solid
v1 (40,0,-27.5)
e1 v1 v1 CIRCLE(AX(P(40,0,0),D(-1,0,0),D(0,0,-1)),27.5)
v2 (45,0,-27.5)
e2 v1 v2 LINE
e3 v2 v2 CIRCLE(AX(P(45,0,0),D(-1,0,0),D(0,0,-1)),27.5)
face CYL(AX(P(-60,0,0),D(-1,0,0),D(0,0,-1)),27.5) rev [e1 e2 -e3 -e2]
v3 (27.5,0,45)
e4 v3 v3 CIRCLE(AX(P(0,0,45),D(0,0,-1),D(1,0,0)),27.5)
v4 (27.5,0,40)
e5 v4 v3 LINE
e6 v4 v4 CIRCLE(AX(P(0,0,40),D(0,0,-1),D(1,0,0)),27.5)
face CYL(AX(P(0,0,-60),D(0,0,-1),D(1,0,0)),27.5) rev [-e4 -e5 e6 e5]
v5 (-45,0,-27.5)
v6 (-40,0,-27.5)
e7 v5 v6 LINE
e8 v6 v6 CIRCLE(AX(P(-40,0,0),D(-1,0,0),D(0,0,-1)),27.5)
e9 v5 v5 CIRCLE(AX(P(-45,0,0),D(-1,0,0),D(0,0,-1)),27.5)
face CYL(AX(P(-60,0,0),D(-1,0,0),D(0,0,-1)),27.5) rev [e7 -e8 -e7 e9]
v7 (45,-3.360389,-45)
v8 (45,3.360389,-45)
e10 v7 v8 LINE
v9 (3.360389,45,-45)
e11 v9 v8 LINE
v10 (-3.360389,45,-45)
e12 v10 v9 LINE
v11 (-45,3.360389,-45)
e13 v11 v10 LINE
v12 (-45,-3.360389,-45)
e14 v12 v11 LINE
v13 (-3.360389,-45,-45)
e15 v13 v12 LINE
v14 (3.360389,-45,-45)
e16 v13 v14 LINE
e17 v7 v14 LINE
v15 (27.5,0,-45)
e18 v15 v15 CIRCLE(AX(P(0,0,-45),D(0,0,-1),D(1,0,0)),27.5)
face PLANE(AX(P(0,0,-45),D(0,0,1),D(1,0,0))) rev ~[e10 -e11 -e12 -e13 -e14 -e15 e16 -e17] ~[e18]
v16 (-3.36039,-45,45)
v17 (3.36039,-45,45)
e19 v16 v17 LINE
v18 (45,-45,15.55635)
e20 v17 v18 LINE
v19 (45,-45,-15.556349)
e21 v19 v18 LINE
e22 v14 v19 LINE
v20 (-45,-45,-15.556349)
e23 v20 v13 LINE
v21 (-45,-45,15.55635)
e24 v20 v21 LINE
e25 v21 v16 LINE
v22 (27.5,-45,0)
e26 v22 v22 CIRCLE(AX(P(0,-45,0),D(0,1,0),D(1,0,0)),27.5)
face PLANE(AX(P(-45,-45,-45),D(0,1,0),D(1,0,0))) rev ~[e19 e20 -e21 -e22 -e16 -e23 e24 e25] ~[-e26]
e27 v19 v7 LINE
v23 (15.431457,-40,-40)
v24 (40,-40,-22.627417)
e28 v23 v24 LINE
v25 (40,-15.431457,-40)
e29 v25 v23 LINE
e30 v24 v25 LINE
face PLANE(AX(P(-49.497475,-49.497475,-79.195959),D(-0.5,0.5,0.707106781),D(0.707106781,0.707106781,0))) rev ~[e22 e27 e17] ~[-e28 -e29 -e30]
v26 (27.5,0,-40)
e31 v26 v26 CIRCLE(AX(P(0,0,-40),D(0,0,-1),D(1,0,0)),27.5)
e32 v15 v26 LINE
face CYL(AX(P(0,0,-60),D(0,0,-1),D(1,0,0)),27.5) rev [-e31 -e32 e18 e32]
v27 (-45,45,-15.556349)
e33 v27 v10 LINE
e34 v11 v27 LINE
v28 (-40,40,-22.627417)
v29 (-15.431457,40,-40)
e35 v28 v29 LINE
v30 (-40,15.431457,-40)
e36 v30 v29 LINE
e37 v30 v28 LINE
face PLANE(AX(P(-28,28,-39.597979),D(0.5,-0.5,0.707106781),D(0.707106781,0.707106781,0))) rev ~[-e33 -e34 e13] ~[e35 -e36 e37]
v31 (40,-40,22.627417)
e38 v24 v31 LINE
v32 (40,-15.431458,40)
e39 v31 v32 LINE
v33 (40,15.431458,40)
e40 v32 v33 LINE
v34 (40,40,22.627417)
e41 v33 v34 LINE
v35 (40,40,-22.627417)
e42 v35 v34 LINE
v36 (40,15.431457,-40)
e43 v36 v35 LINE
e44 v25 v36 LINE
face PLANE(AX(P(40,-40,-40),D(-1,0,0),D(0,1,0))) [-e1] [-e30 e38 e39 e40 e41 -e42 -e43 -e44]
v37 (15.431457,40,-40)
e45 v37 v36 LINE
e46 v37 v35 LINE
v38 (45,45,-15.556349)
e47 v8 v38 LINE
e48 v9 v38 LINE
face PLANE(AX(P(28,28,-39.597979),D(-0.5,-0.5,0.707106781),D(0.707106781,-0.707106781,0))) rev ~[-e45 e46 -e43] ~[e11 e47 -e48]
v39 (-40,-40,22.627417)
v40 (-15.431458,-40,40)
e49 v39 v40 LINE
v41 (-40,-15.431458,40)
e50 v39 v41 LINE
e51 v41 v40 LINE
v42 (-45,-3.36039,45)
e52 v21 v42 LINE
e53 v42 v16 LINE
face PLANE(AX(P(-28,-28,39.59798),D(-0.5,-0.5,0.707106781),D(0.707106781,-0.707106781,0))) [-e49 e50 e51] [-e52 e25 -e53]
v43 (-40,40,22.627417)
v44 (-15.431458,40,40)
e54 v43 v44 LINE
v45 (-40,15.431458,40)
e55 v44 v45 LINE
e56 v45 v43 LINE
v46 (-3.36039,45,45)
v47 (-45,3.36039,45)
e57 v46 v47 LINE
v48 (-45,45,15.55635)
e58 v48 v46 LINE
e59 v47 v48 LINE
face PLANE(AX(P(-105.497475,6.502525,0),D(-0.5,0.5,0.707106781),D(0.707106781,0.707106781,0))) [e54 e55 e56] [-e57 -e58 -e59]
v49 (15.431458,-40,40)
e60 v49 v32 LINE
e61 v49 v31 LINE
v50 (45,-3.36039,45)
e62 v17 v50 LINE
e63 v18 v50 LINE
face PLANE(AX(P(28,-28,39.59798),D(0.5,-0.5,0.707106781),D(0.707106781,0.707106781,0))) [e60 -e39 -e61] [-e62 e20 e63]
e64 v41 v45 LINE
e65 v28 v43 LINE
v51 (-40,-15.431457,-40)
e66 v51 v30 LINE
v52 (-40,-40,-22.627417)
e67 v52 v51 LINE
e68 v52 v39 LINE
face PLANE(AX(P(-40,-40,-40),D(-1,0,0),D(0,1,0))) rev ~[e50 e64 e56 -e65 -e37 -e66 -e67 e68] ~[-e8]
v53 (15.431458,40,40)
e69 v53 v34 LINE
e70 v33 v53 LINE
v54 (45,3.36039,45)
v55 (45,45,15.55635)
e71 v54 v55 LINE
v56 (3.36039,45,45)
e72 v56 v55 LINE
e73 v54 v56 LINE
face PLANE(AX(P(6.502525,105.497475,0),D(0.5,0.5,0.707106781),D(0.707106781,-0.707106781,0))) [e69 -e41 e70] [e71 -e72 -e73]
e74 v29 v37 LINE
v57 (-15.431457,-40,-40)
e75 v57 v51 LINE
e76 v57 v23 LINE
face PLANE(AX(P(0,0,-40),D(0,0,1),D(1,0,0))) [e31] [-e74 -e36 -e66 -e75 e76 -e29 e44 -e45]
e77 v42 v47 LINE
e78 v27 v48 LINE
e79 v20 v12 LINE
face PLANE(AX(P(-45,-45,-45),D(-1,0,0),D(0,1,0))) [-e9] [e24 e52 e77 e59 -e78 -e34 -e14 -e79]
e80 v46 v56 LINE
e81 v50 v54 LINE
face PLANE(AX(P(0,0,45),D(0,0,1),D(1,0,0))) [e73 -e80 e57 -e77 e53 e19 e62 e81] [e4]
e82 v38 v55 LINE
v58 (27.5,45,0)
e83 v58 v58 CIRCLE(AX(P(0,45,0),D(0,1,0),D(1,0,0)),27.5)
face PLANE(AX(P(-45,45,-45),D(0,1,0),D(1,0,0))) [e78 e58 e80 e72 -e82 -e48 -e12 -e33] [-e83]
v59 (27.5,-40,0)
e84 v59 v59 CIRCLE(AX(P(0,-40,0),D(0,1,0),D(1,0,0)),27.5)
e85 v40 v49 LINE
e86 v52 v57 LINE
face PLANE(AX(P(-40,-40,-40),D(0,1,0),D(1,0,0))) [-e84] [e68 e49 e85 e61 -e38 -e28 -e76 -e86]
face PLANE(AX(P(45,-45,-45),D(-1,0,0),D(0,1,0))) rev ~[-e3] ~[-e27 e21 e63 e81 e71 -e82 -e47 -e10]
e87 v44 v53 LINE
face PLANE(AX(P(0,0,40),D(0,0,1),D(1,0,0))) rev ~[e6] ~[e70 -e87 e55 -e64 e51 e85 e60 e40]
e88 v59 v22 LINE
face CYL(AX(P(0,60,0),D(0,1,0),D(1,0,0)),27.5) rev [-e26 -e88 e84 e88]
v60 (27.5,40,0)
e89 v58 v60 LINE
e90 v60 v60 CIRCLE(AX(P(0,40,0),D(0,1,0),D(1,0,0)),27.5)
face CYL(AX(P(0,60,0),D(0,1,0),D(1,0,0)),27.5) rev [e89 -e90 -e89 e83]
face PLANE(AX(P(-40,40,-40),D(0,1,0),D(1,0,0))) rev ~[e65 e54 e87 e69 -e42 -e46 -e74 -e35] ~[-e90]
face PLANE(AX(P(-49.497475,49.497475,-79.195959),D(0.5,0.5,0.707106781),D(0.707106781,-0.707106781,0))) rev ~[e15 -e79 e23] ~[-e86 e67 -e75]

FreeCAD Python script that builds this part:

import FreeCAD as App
import Part
import Sketcher

V = App.Vector

doc = App.newDocument("Part")
body = doc.addObject("PartDesign::Body", "Body")

sketch1 = doc.addObject("Sketcher::SketchObject", "Sketch")
body.addObject(sketch1)
sketch1.AttachmentSupport = (doc.XY_Plane, [""])
sketch1.MapMode = "FlatFace"
sketch1.addGeometry(Part.LineSegment(V(0, 112, 0), V(0, 0, 0)), False)
sketch1.addGeometry(Part.LineSegment(V(0, 0, 0), V(140, 0, 0)), False)
sketch1.addGeometry(Part.LineSegment(V(140, 0, 0), V(140, 112, 0)), False)
sketch1.addGeometry(Part.LineSegment(V(140, 112, 0), V(0, 112, 0)), False)
sketch1.addConstraint(Sketcher.Constraint("Coincident", 0, 2, 1, 1))
sketch1.addConstraint(Sketcher.Constraint("Coincident", 1, 2, 2, 1))
sketch1.addConstraint(Sketcher.Constraint("Coincident", 2, 2, 3, 1))
sketch1.addConstraint(Sketcher.Constraint("Coincident", 3, 2, 0, 1))
sketch1.addConstraint(Sketcher.Constraint("Vertical", 0))
sketch1.addConstraint(Sketcher.Constraint("Horizontal", 1))
sketch1.addConstraint(Sketcher.Constraint("Vertical", 2))
sketch1.addConstraint(Sketcher.Constraint("Horizontal", 3))
sketch1.addConstraint(Sketcher.Constraint("Coincident", 0, 2, -1, 1))
sketch1.addConstraint(Sketcher.Constraint("DistanceX", 1, 1, 1, 2, 140.0))
sketch1.addConstraint(Sketcher.Constraint("DistanceY", 0, 2, 0, 1, 112.0))
pad1 = doc.addObject("PartDesign::Pad", "Pad")
body.addObject(pad1)
pad1.Profile = sketch1
pad1.Length = 112
body2 = doc.addObject("PartDesign::Body", "Body001")
doc.recompute()

body.Placement = App.Placement(V(0, 0, 0), App.Rotation(V(1, 0, 0), 45))
boolean = doc.addObject("PartDesign::Boolean", "Boolean")
body2.addObject(boolean)
boolean.Type = "Fuse"
boolean.addObjects([body])
body3 = doc.addObject("PartDesign::Body", "Body002")
doc.recompute()

body2.Placement = App.Placement(V(-49.497475, 49.497475, -79.195959), App.Rotation(V(0, 0, 1), 315))
boolean2 = doc.addObject("PartDesign::Boolean", "Boolean001")
body3.addObject(boolean2)
boolean2.Type = "Fuse"
boolean2.addObjects([body2])
body4 = doc.addObject("PartDesign::Body", "Body003")

sketch2 = doc.addObject("Sketcher::SketchObject", "Sketch001")
body4.addObject(sketch2)
sketch2.AttachmentSupport = (doc.getObject("XY_Plane003"), [""])
sketch2.MapMode = "FlatFace"
sketch2.addGeometry(Part.LineSegment(V(0, 180, 0), V(0, 0, 0)), False)
sketch2.addGeometry(Part.LineSegment(V(0, 0, 0), V(180, 0, 0)), False)
sketch2.addGeometry(Part.LineSegment(V(180, 0, 0), V(180, 180, 0)), False)
sketch2.addGeometry(Part.LineSegment(V(180, 180, 0), V(0, 180, 0)), False)
sketch2.addConstraint(Sketcher.Constraint("Coincident", 0, 2, 1, 1))
sketch2.addConstraint(Sketcher.Constraint("Coincident", 1, 2, 2, 1))
sketch2.addConstraint(Sketcher.Constraint("Coincident", 2, 2, 3, 1))
sketch2.addConstraint(Sketcher.Constraint("Coincident", 3, 2, 0, 1))
sketch2.addConstraint(Sketcher.Constraint("Vertical", 0))
sketch2.addConstraint(Sketcher.Constraint("Horizontal", 1))
sketch2.addConstraint(Sketcher.Constraint("Vertical", 2))
sketch2.addConstraint(Sketcher.Constraint("Horizontal", 3))
sketch2.addConstraint(Sketcher.Constraint("Coincident", 0, 2, -1, 1))
sketch2.addConstraint(Sketcher.Constraint("Equal", 3, 0))
sketch2.addConstraint(Sketcher.Constraint("DistanceX", 1, 1, 1, 2, 180.0))
pad2 = doc.addObject("PartDesign::Pad", "Pad001")
body4.addObject(pad2)
pad2.Profile = sketch2
pad2.Length = 180
body5 = doc.addObject("PartDesign::Body", "Body004")
doc.recompute()

body4.Placement = App.Placement(V(0, 0, 0), App.Rotation(V(1, 0, 0), 45))
boolean3 = doc.addObject("PartDesign::Boolean", "Boolean002")
body5.addObject(boolean3)
boolean3.Type = "Fuse"
boolean3.addObjects([body4])
body6 = doc.addObject("PartDesign::Body", "Body005")
doc.recompute()

body5.Placement = App.Placement(V(-63.63961, 63.63961, -127.279221), App.Rotation(V(0, 0, 1), 315))
boolean4 = doc.addObject("PartDesign::Boolean", "Boolean003")
body6.addObject(boolean4)
boolean4.Type = "Fuse"
boolean4.addObjects([body5])
doc.recompute()

boolean5 = doc.addObject("PartDesign::Boolean", "Boolean004")
body6.addObject(boolean5)
boolean5.Type = "Cut"
boolean5.addObjects([body3])
body7 = doc.addObject("PartDesign::Body", "Body006")

sketch3 = doc.addObject("Sketcher::SketchObject", "Sketch002")
body7.addObject(sketch3)
sketch3.AttachmentSupport = (doc.getObject("XY_Plane006"), [""])
sketch3.MapMode = "FlatFace"
sketch3.addGeometry(Part.LineSegment(V(0, 112, 0), V(0, 0, 0)), False)
sketch3.addGeometry(Part.LineSegment(V(0, 0, 0), V(140, 0, 0)), False)
sketch3.addGeometry(Part.LineSegment(V(140, 0, 0), V(140, 112, 0)), False)
sketch3.addGeometry(Part.LineSegment(V(140, 112, 0), V(0, 112, 0)), False)
sketch3.addConstraint(Sketcher.Constraint("Coincident", 0, 2, 1, 1))
sketch3.addConstraint(Sketcher.Constraint("Coincident", 1, 2, 2, 1))
sketch3.addConstraint(Sketcher.Constraint("Coincident", 2, 2, 3, 1))
sketch3.addConstraint(Sketcher.Constraint("Coincident", 3, 2, 0, 1))
sketch3.addConstraint(Sketcher.Constraint("Vertical", 0))
sketch3.addConstraint(Sketcher.Constraint("Horizontal", 1))
sketch3.addConstraint(Sketcher.Constraint("Vertical", 2))
sketch3.addConstraint(Sketcher.Constraint("Horizontal", 3))
sketch3.addConstraint(Sketcher.Constraint("Coincident", 0, 2, -1, 1))
sketch3.addConstraint(Sketcher.Constraint("DistanceX", 1, 1, 1, 2, 140.0))
sketch3.addConstraint(Sketcher.Constraint("DistanceY", 0, 2, 0, 1, 112.0))
pad3 = doc.addObject("PartDesign::Pad", "Pad002")
body7.addObject(pad3)
pad3.Profile = sketch3
pad3.Length = 112
body8 = doc.addObject("PartDesign::Body", "Body007")
doc.recompute()

body7.Placement = App.Placement(V(0, 0, 0), App.Rotation(V(1, 0, 0), 45))
boolean6 = doc.addObject("PartDesign::Boolean", "Boolean005")
body8.addObject(boolean6)
boolean6.Type = "Fuse"
boolean6.addObjects([body7])
body9 = doc.addObject("PartDesign::Body", "Body008")
doc.recompute()

body8.Placement = App.Placement(V(-49.497475, -49.497475, -79.195959), App.Rotation(V(0, 0, 1), 45))
boolean7 = doc.addObject("PartDesign::Boolean", "Boolean006")
body9.addObject(boolean7)
boolean7.Type = "Fuse"
boolean7.addObjects([body8])
body10 = doc.addObject("PartDesign::Body", "Body009")

sketch4 = doc.addObject("Sketcher::SketchObject", "Sketch003")
body10.addObject(sketch4)
sketch4.AttachmentSupport = (doc.getObject("XY_Plane009"), [""])
sketch4.MapMode = "FlatFace"
sketch4.addGeometry(Part.LineSegment(V(0, 180, 0), V(0, 0, 0)), False)
sketch4.addGeometry(Part.LineSegment(V(0, 0, 0), V(180, 0, 0)), False)
sketch4.addGeometry(Part.LineSegment(V(180, 0, 0), V(180, 180, 0)), False)
sketch4.addGeometry(Part.LineSegment(V(180, 180, 0), V(0, 180, 0)), False)
sketch4.addConstraint(Sketcher.Constraint("Coincident", 0, 2, 1, 1))
sketch4.addConstraint(Sketcher.Constraint("Coincident", 1, 2, 2, 1))
sketch4.addConstraint(Sketcher.Constraint("Coincident", 2, 2, 3, 1))
sketch4.addConstraint(Sketcher.Constraint("Coincident", 3, 2, 0, 1))
sketch4.addConstraint(Sketcher.Constraint("Vertical", 0))
sketch4.addConstraint(Sketcher.Constraint("Horizontal", 1))
sketch4.addConstraint(Sketcher.Constraint("Vertical", 2))
sketch4.addConstraint(Sketcher.Constraint("Horizontal", 3))
sketch4.addConstraint(Sketcher.Constraint("Coincident", 0, 2, -1, 1))
sketch4.addConstraint(Sketcher.Constraint("Equal", 3, 0))
sketch4.addConstraint(Sketcher.Constraint("DistanceX", 1, 1, 1, 2, 180.0))
pad4 = doc.addObject("PartDesign::Pad", "Pad003")
body10.addObject(pad4)
pad4.Profile = sketch4
pad4.Length = 180
body11 = doc.addObject("PartDesign::Body", "Body010")
doc.recompute()

body10.Placement = App.Placement(V(0, 0, 0), App.Rotation(V(1, 0, 0), 45))
boolean8 = doc.addObject("PartDesign::Boolean", "Boolean007")
body11.addObject(boolean8)
boolean8.Type = "Fuse"
boolean8.addObjects([body10])
body12 = doc.addObject("PartDesign::Body", "Body011")
doc.recompute()

body11.Placement = App.Placement(V(-63.63961, -63.63961, -127.279221), App.Rotation(V(0, 0, 1), 45))
boolean9 = doc.addObject("PartDesign::Boolean", "Boolean008")
body12.addObject(boolean9)
boolean9.Type = "Fuse"
boolean9.addObjects([body11])
doc.recompute()

boolean10 = doc.addObject("PartDesign::Boolean", "Boolean009")
body12.addObject(boolean10)
boolean10.Type = "Cut"
boolean10.addObjects([body9])
body13 = doc.addObject("PartDesign::Body", "Body012")

sketch5 = doc.addObject("Sketcher::SketchObject", "Sketch004")
body13.addObject(sketch5)
sketch5.AttachmentSupport = (doc.getObject("XY_Plane012"), [""])
sketch5.MapMode = "FlatFace"
sketch5.addGeometry(Part.Circle(V(0, 0, 0), V(0, 0, 1), 28), False)
sketch5.addConstraint(Sketcher.Constraint("Coincident", 0, 3, -1, 1))
sketch5.addConstraint(Sketcher.Constraint("Diameter", 0, 55.0))
pad5 = doc.addObject("PartDesign::Pad", "Pad004")
body13.addObject(pad5)
pad5.Profile = sketch5
pad5.Length = 120
body14 = doc.addObject("PartDesign::Body", "Body013")
doc.recompute()

body13.Placement = App.Placement(V(0, 0, 0), App.Rotation(V(0, 1, 0), 90))
boolean11 = doc.addObject("PartDesign::Boolean", "Boolean010")
body14.addObject(boolean11)
boolean11.Type = "Fuse"
boolean11.addObjects([body13])
body15 = doc.addObject("PartDesign::Body", "Body014")
doc.recompute()

body14.Placement = App.Placement(V(-60, 0, 0), App.Rotation(V(0, 0, 1), 0))
boolean12 = doc.addObject("PartDesign::Boolean", "Boolean011")
body15.addObject(boolean12)
boolean12.Type = "Fuse"
boolean12.addObjects([body14])
body16 = doc.addObject("PartDesign::Body", "Body015")

sketch6 = doc.addObject("Sketcher::SketchObject", "Sketch005")
body16.addObject(sketch6)
sketch6.AttachmentSupport = (doc.getObject("XY_Plane015"), [""])
sketch6.MapMode = "FlatFace"
sketch6.addGeometry(Part.Circle(V(0, 0, 0), V(0, 0, 1), 28), False)
sketch6.addConstraint(Sketcher.Constraint("Coincident", 0, 3, -1, 1))
sketch6.addConstraint(Sketcher.Constraint("Diameter", 0, 55.0))
pad6 = doc.addObject("PartDesign::Pad", "Pad005")
body16.addObject(pad6)
pad6.Profile = sketch6
pad6.Length = 120
body17 = doc.addObject("PartDesign::Body", "Body016")
doc.recompute()

body16.Placement = App.Placement(V(0, 0, 0), App.Rotation(V(1, 0, 0), 90))
boolean13 = doc.addObject("PartDesign::Boolean", "Boolean012")
body17.addObject(boolean13)
boolean13.Type = "Fuse"
boolean13.addObjects([body16])
body18 = doc.addObject("PartDesign::Body", "Body017")
doc.recompute()

body17.Placement = App.Placement(V(0, 60, 0), App.Rotation(V(0, 0, 1), 0))
boolean14 = doc.addObject("PartDesign::Boolean", "Boolean013")
body18.addObject(boolean14)
boolean14.Type = "Fuse"
boolean14.addObjects([body17])
body19 = doc.addObject("PartDesign::Body", "Body018")

sketch7 = doc.addObject("Sketcher::SketchObject", "Sketch006")
body19.addObject(sketch7)
sketch7.AttachmentSupport = (doc.getObject("XY_Plane018"), [""])
sketch7.MapMode = "FlatFace"
sketch7.AttachmentOffset = App.Placement(V(0, 0, -60), App.Rotation())
sketch7.addGeometry(Part.Circle(V(0, 0, 0), V(0, 0, 1), 28), False)
sketch7.addConstraint(Sketcher.Constraint("Coincident", 0, 3, -1, 1))
sketch7.addConstraint(Sketcher.Constraint("Diameter", 0, 55.0))
pad7 = doc.addObject("PartDesign::Pad", "Pad006")
body19.addObject(pad7)
pad7.Profile = sketch7
pad7.Length = 120
body20 = doc.addObject("PartDesign::Body", "Body019")

sketch8 = doc.addObject("Sketcher::SketchObject", "Sketch007")
body20.addObject(sketch8)
sketch8.AttachmentSupport = (doc.getObject("XY_Plane019"), [""])
sketch8.MapMode = "FlatFace"
sketch8.AttachmentOffset = App.Placement(V(0, 0, -40), App.Rotation())
sketch8.addGeometry(Part.LineSegment(V(-40, 40, 0), V(-40, -40, 0)), False)
sketch8.addGeometry(Part.LineSegment(V(-40, -40, 0), V(40, -40, 0)), False)
sketch8.addGeometry(Part.LineSegment(V(40, -40, 0), V(40, 40, 0)), False)
sketch8.addGeometry(Part.LineSegment(V(40, 40, 0), V(-40, 40, 0)), False)
sketch8.addConstraint(Sketcher.Constraint("Coincident", 0, 2, 1, 1))
sketch8.addConstraint(Sketcher.Constraint("Coincident", 1, 2, 2, 1))
sketch8.addConstraint(Sketcher.Constraint("Coincident", 2, 2, 3, 1))
sketch8.addConstraint(Sketcher.Constraint("Coincident", 3, 2, 0, 1))
sketch8.addConstraint(Sketcher.Constraint("Vertical", 0))
sketch8.addConstraint(Sketcher.Constraint("Horizontal", 1))
sketch8.addConstraint(Sketcher.Constraint("Vertical", 2))
sketch8.addConstraint(Sketcher.Constraint("Horizontal", 3))
sketch8.addConstraint(Sketcher.Constraint("Symmetric", 0, 2, 2, 2, -1, 1))
sketch8.addConstraint(Sketcher.Constraint("Equal", 3, 0))
sketch8.addConstraint(Sketcher.Constraint("DistanceX", 1, 1, 1, 2, 80.0))
pad8 = doc.addObject("PartDesign::Pad", "Pad007")
body20.addObject(pad8)
pad8.Profile = sketch8
pad8.Length = 80
doc.recompute()

boolean15 = doc.addObject("PartDesign::Boolean", "Boolean014")
body20.addObject(boolean15)
boolean15.Type = "Fuse"
boolean15.addObjects([body15])
doc.recompute()

boolean16 = doc.addObject("PartDesign::Boolean", "Boolean015")
body20.addObject(boolean16)
boolean16.Type = "Fuse"
boolean16.addObjects([body18])
doc.recompute()

boolean17 = doc.addObject("PartDesign::Boolean", "Boolean016")
body20.addObject(boolean17)
boolean17.Type = "Fuse"
boolean17.addObjects([body19])
body21 = doc.addObject("PartDesign::Body", "Body020")

sketch9 = doc.addObject("Sketcher::SketchObject", "Sketch008")
body21.addObject(sketch9)
sketch9.AttachmentSupport = (doc.getObject("XY_Plane020"), [""])
sketch9.MapMode = "FlatFace"
sketch9.AttachmentOffset = App.Placement(V(0, 0, -45), App.Rotation())
sketch9.addGeometry(Part.LineSegment(V(-45, 45, 0), V(-45, -45, 0)), False)
sketch9.addGeometry(Part.LineSegment(V(-45, -45, 0), V(45, -45, 0)), False)
sketch9.addGeometry(Part.LineSegment(V(45, -45, 0), V(45, 45, 0)), False)
sketch9.addGeometry(Part.LineSegment(V(45, 45, 0), V(-45, 45, 0)), False)
sketch9.addConstraint(Sketcher.Constraint("Coincident", 0, 2, 1, 1))
sketch9.addConstraint(Sketcher.Constraint("Coincident", 1, 2, 2, 1))
sketch9.addConstraint(Sketcher.Constraint("Coincident", 2, 2, 3, 1))
sketch9.addConstraint(Sketcher.Constraint("Coincident", 3, 2, 0, 1))
sketch9.addConstraint(Sketcher.Constraint("Vertical", 0))
sketch9.addConstraint(Sketcher.Constraint("Horizontal", 1))
sketch9.addConstraint(Sketcher.Constraint("Vertical", 2))
sketch9.addConstraint(Sketcher.Constraint("Horizontal", 3))
sketch9.addConstraint(Sketcher.Constraint("Symmetric", 0, 2, 2, 2, -1, 1))
sketch9.addConstraint(Sketcher.Constraint("Equal", 3, 0))
sketch9.addConstraint(Sketcher.Constraint("DistanceX", 1, 1, 1, 2, 90.0))
pad9 = doc.addObject("PartDesign::Pad", "Pad008")
body21.addObject(pad9)
pad9.Profile = sketch9
pad9.Length = 90
doc.recompute()

boolean18 = doc.addObject("PartDesign::Boolean", "Boolean017")
body21.addObject(boolean18)
boolean18.Type = "Cut"
boolean18.addObjects([body20])
doc.recompute()

boolean19 = doc.addObject("PartDesign::Boolean", "Boolean018")
body21.addObject(boolean19)
boolean19.Type = "Cut"
boolean19.addObjects([body12])
doc.recompute()

boolean20 = doc.addObject("PartDesign::Boolean", "Boolean019")
body21.addObject(boolean20)
boolean20.Type = "Cut"
boolean20.addObjects([body6])

doc.recompute()
